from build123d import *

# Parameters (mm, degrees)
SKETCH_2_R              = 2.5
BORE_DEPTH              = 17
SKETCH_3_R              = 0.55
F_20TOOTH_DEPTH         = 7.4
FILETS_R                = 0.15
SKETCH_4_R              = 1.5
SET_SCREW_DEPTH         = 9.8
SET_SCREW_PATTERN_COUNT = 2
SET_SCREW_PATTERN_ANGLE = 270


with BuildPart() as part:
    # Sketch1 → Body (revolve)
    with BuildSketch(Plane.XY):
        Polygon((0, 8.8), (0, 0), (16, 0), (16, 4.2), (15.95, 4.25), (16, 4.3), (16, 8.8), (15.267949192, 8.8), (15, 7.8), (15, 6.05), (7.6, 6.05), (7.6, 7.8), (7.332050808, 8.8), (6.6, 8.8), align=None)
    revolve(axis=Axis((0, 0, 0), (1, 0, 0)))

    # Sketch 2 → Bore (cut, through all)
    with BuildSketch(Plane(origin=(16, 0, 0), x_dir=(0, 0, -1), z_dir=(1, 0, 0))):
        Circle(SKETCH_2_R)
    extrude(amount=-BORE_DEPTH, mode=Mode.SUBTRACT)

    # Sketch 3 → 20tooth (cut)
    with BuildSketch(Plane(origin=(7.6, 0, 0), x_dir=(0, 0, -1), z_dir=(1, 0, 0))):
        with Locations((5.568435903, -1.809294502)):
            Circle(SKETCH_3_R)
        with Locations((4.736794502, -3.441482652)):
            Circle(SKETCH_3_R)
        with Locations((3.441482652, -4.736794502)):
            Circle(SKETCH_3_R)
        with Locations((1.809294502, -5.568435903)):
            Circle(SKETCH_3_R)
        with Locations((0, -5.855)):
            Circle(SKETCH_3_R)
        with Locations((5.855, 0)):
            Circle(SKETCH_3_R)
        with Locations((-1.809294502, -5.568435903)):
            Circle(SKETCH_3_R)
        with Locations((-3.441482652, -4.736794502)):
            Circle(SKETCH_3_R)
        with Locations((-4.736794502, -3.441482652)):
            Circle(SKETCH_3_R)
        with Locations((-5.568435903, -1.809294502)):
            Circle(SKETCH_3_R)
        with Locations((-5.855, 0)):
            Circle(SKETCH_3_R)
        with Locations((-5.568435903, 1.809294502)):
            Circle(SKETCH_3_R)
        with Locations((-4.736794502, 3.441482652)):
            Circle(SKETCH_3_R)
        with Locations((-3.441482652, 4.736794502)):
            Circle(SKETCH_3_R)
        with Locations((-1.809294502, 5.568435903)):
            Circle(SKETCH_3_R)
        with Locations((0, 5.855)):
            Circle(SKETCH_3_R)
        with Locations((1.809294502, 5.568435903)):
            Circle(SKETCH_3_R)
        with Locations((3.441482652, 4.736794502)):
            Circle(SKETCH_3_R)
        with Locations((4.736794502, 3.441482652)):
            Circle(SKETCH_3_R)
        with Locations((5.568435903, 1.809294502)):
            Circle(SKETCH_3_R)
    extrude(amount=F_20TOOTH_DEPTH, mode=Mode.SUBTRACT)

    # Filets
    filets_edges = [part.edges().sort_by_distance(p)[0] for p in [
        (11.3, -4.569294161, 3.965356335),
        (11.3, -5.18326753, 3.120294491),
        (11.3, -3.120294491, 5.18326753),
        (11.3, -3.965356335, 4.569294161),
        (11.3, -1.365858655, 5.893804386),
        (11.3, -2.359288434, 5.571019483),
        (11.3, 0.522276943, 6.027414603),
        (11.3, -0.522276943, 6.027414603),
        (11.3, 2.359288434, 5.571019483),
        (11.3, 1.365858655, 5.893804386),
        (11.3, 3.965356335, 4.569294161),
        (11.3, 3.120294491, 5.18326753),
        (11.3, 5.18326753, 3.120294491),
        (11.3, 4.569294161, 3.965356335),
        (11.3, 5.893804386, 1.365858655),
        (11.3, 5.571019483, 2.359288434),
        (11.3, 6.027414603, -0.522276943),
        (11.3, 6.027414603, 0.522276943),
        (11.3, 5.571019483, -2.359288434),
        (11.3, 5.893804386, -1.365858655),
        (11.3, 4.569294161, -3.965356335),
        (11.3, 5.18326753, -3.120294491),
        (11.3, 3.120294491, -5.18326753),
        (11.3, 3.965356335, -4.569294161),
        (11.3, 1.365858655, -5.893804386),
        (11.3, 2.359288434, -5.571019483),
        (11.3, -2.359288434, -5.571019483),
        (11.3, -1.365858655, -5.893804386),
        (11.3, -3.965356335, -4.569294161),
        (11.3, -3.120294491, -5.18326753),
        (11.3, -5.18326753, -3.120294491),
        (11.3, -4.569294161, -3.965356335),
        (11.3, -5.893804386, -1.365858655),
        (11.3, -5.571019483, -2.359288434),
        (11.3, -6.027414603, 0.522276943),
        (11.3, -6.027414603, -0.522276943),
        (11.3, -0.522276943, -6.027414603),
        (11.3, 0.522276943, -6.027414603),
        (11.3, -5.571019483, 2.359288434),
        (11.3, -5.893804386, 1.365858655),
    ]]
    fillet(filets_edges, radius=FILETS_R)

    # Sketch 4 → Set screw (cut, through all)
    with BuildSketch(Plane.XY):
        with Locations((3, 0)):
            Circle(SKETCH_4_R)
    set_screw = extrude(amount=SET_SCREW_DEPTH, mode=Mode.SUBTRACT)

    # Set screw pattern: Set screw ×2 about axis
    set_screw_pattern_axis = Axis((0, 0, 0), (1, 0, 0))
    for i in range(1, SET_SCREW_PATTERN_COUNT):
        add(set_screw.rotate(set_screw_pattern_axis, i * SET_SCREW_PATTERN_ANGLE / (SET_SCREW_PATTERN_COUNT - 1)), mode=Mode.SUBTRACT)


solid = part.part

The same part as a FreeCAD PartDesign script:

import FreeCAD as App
import Part
import Sketcher
Q = App.Units.Quantity


def edges_at(feature, points):
    """Names of the edges that pass closest to the given points."""
    edges = feature.Shape.Edges
    near = lambda p: min(range(len(edges)), key=lambda i: edges[i].distToShape(Part.Vertex(*p))[0])
    return sorted({f"Edge{near(p) + 1}" for p in points})


def add_polygon(sketch, points):
    """Adds a closed chain of lines whose ends are joined by coincident constraints."""
    first, n = sketch.GeometryCount, len(points)
    for a, b in zip(points, points[1:] + points[:1]):
        sketch.addGeometry(Part.LineSegment(App.Vector(*a, 0), App.Vector(*b, 0)), False)
    for i in range(n):
        sketch.addConstraint(Sketcher.Constraint("Coincident", first + i, 2, first + (i + 1) % n, 1))

doc = App.newDocument("Part")
body = doc.addObject("PartDesign::Body", "Body")

# Sketch on XY plane
sketch1 = doc.addObject("Sketcher::SketchObject", "Sketch")
body.addObject(sketch1)
sketch1.AttachmentSupport = (doc.XY_Plane, [""])
sketch1.MapMode = "FlatFace"
add_polygon(sketch1, [(0, 8.8), (0, 0), (16, 0), (16, 4.2), (15.95, 4.25), (16, 4.3), (16, 8.8), (15.27, 8.8), (15, 7.8), (15, 6.05), (7.6, 6.05), (7.6, 7.8), (7.33, 8.8)])  # lines 0-12
sketch1.addConstraint([
    Sketcher.Constraint("Vertical", 0),
    Sketcher.Constraint("Horizontal", 1),
    Sketcher.Constraint("Vertical", 2),
    Sketcher.Constraint("Vertical", 5),
    Sketcher.Constraint("Horizontal", 6),
    Sketcher.Constraint("Vertical", 8),
    Sketcher.Constraint("Horizontal", 9),
    Sketcher.Constraint("Vertical", 10),
    Sketcher.Constraint("Horizontal", 12),
    Sketcher.Constraint("Coincident", 0, 2, -1, 1),
    Sketcher.Constraint("Perpendicular", 3, 4),
    Sketcher.Constraint("Horizontal", 7, 2, 10, 2),
    Sketcher.Constraint("Horizontal", 6, 2, 11, 2),
    Sketcher.Constraint("Vertical", 2, 2, 4, 2),
    Sketcher.Constraint("Equal", 3, 4),
    Sketcher.Constraint("Equal", 7, 11),
    Sketcher.Constraint("DistanceX", 1, 1, 1, 2, 16.0),
    Sketcher.Constraint("Angle", 7, Q("-105 deg")),
    Sketcher.Constraint("DistanceX", 9, 2, 9, 1, 7.4),
    Sketcher.Constraint("DistanceY", 0, 2, 0, 1, 8.8),
    Sketcher.Constraint("DistanceY", 2, 1, 2, 2, 4.2),
    Sketcher.Constraint("DistanceY", 5, 1, 5, 2, 4.5),
    Sketcher.Constraint("DistanceX", -1, 1, 7, 2, 15.0),
    Sketcher.Constraint("DistanceY", 7, 2, 6, 2, 1.0),
    Sketcher.Constraint("DistanceY", 8, 2, 8, 1, 1.75),
])
revolution = doc.addObject("PartDesign::Revolution", "Revolution")
body.addObject(revolution)
revolution.Profile = sketch1
revolution.ReferenceAxis = (sketch1, ["H_Axis"])
revolution.Angle = 360

# Sketch on YZ plane
sketch2 = doc.addObject("Sketcher::SketchObject", "Sketch001")
body.addObject(sketch2)
sketch2.AttachmentSupport = (doc.YZ_Plane, [""])
sketch2.MapMode = "FlatFace"
sketch2.AttachmentOffset = App.Placement(App.Vector(0, 0, 16), App.Rotation())
sketch2.addGeometry(Part.Circle(App.Vector(0, 0, 0), App.Vector(0, 0, 1), 2.5), False)
sketch2.addConstraint([
    Sketcher.Constraint("Coincident", 0, 3, -1, 1),
    Sketcher.Constraint("Diameter", 0, 5.0),
])
pocket1 = doc.addObject("PartDesign::Pocket", "Pocket")
body.addObject(pocket1)
pocket1.Profile = sketch2
pocket1.Type = "ThroughAll"

# Sketch on YZ plane
sketch3 = doc.addObject("Sketcher::SketchObject", "Sketch002")
body.addObject(sketch3)
sketch3.AttachmentSupport = (doc.YZ_Plane, [""])
sketch3.MapMode = "FlatFace"
sketch3.AttachmentOffset = App.Placement(App.Vector(0, 0, 7.6), App.Rotation())
sketch3.addGeometry([
    Part.Circle(App.Vector(-1.8, -5.6, 0), App.Vector(0, 0, 1), 0.6),  # 0
    Part.Circle(App.Vector(-3.4, -4.7, 0), App.Vector(0, 0, 1), 0.6),  # 1
    Part.Circle(App.Vector(-4.7, -3.4, 0), App.Vector(0, 0, 1), 0.6),  # 2
    Part.Circle(App.Vector(-5.6, -1.8, 0), App.Vector(0, 0, 1), 0.6),  # 3
    Part.Circle(App.Vector(-5.9, 0, 0), App.Vector(0, 0, 1), 0.6),  # 4
    Part.Circle(App.Vector(0, -5.9, 0), App.Vector(0, 0, 1), 0.6),  # 5
    Part.Circle(App.Vector(-5.6, 1.8, 0), App.Vector(0, 0, 1), 0.6),  # 6
    Part.Circle(App.Vector(-4.7, 3.4, 0), App.Vector(0, 0, 1), 0.6),  # 7
    Part.Circle(App.Vector(-3.4, 4.7, 0), App.Vector(0, 0, 1), 0.6),  # 8
    Part.Circle(App.Vector(-1.8, 5.6, 0), App.Vector(0, 0, 1), 0.6),  # 9
    Part.Circle(App.Vector(0, 5.9, 0), App.Vector(0, 0, 1), 0.6),  # 10
    Part.Circle(App.Vector(1.8, 5.6, 0), App.Vector(0, 0, 1), 0.6),  # 11
    Part.Circle(App.Vector(3.4, 4.7, 0), App.Vector(0, 0, 1), 0.6),  # 12
    Part.Circle(App.Vector(4.7, 3.4, 0), App.Vector(0, 0, 1), 0.6),  # 13
    Part.Circle(App.Vector(5.6, 1.8, 0), App.Vector(0, 0, 1), 0.6),  # 14
    Part.Circle(App.Vector(5.9, 0, 0), App.Vector(0, 0, 1), 0.6),  # 15
    Part.Circle(App.Vector(5.6, -1.8, 0), App.Vector(0, 0, 1), 0.6),  # 16
    Part.Circle(App.Vector(4.7, -3.4, 0), App.Vector(0, 0, 1), 0.6),  # 17
    Part.Circle(App.Vector(3.4, -4.7, 0), App.Vector(0, 0, 1), 0.6),  # 18
    Part.Circle(App.Vector(1.8, -5.6, 0), App.Vector(0, 0, 1), 0.6),  # 19
], False)
sketch3.addConstraint([
    Sketcher.Constraint("Equal", 0, 1),
    Sketcher.Constraint("Equal", 1, 2),
    Sketcher.Constraint("Equal", 2, 3),
    Sketcher.Constraint("Equal", 3, 4),
    Sketcher.Constraint("Equal", 4, 5),
    Sketcher.Constraint("Equal", 5, 6),
    Sketcher.Constraint("Equal", 6, 7),
    Sketcher.Constraint("Equal", 7, 8),
    Sketcher.Constraint("Equal", 8, 9),
    Sketcher.Constraint("Equal", 9, 10),
    Sketcher.Constraint("Equal", 10, 11),
    Sketcher.Constraint("Equal", 11, 12),
    Sketcher.Constraint("Equal", 12, 13),
    Sketcher.Constraint("Equal", 13, 14),
    Sketcher.Constraint("Equal", 14, 15),
    Sketcher.Constraint("Equal", 15, 16),
    Sketcher.Constraint("Equal", 16, 17),
    Sketcher.Constraint("Equal", 17, 18),
    Sketcher.Constraint("Equal", 18, 19),
    Sketcher.Constraint("Symmetric", 5, 3, 10, 3, -1, 1),
    Sketcher.Constraint("Symmetric", 0, 3, 11, 3, -1, 1),
    Sketcher.Constraint("Symmetric", 1, 3, 12, 3, -1, 1),
    Sketcher.Constraint("Symmetric", 2, 3, 13, 3, -1, 1),
    Sketcher.Constraint("Symmetric", 3, 3, 14, 3, -1, 1),
    Sketcher.Constraint("Symmetric", 4, 3, 15, 3, -1, 1),
    Sketcher.Constraint("Symmetric", 6, 3, 16, 3, -1, 1),
    Sketcher.Constraint("Symmetric", 7, 3, 17, 3, -1, 1),
    Sketcher.Constraint("Symmetric", 8, 3, 18, 3, -1, 1),
    Sketcher.Constraint("Symmetric", 9, 3, 19, 3, -1, 1),
    Sketcher.Constraint("Symmetric", 9, 3, 11, 3, -2),
    Sketcher.Constraint("Symmetric", 8, 3, 12, 3, -2),
    Sketcher.Constraint("Symmetric", 7, 3, 13, 3, -2),
    Sketcher.Constraint("Symmetric", 6, 3, 14, 3, -2),
    Sketcher.Constraint("PointOnObject", 4, 3, -1),
    Sketcher.Constraint("PointOnObject", 5, 3, -2),
    Sketcher.Constraint("Diameter", 0, 1.1),
    Sketcher.Constraint("DistanceX", 4, 3, -1, 1, 5.855),
    Sketcher.Constraint("DistanceY", 5, 3, -1, 1, 5.855),
    Sketcher.Constraint("DistanceX", 2, 3, 0, 3, 2.9275),
    Sketcher.Constraint("DistanceY", 1, 3, 3, 3, 2.9275),
    Sketcher.Constraint("DistanceX", 1, 3, 0, 3, 1.632188),
    Sketcher.Constraint("DistanceY", 0, 3, 1, 3, 0.831641),
    Sketcher.Constraint("DistanceY", 1, 3, 2, 3, 1.295312),
    Sketcher.Constraint("DistanceX", 3, 3, 2, 3, 0.831641),
    Sketcher.Constraint("DistanceY", 3, 3, 6, 3, 3.618589),
    Sketcher.Constraint("DistanceX", 9, 3, 11, 3, 3.618589),
])
pocket2 = doc.addObject("PartDesign::Pocket", "Pocket001")
body.addObject(pocket2)
pocket2.Profile = sketch3
pocket2.Length = 7.4
pocket2.Reversed = True
doc.recompute()

fillet = doc.addObject("PartDesign::Fillet", "Fillet")
body.addObject(fillet)
fillet.Base = (pocket2, edges_at(pocket2, [
    (11.3, -4.569, 3.965),
    (11.3, -5.183, 3.12),
    (11.3, -3.12, 5.183),
    (11.3, -3.965, 4.569),
    (11.3, -1.366, 5.894),
    (11.3, -2.359, 5.571),
    (11.3, 0.522, 6.027),
    (11.3, -0.522, 6.027),
    (11.3, 2.359, 5.571),
    (11.3, 1.366, 5.894),
    (11.3, 3.965, 4.569),
    (11.3, 3.12, 5.183),
    (11.3, 5.183, 3.12),
    (11.3, 4.569, 3.965),
    (11.3, 5.894, 1.366),
    (11.3, 5.571, 2.359),
    (11.3, 6.027, -0.522),
    (11.3, 6.027, 0.522),
    (11.3, 5.571, -2.359),
    (11.3, 5.894, -1.366),
    (11.3, 4.569, -3.965),
    (11.3, 5.183, -3.12),
    (11.3, 3.12, -5.183),
    (11.3, 3.965, -4.569),
    (11.3, 1.366, -5.894),
    (11.3, 2.359, -5.571),
    (11.3, -2.359, -5.571),
    (11.3, -1.366, -5.894),
    (11.3, -3.965, -4.569),
    (11.3, -3.12, -5.183),
    (11.3, -5.183, -3.12),
    (11.3, -4.569, -3.965),
    (11.3, -5.894, -1.366),
    (11.3, -5.571, -2.359),
    (11.3, -6.027, 0.522),
    (11.3, -6.027, -0.522),
    (11.3, -0.522, -6.027),
    (11.3, 0.522, -6.027),
    (11.3, -5.571, 2.359),
    (11.3, -5.894, 1.366),
]))
fillet.Radius = 0.15

# Sketch on XY plane
sketch4 = doc.addObject("Sketcher::SketchObject", "Sketch003")
body.addObject(sketch4)
sketch4.AttachmentSupport = (doc.XY_Plane, [""])
sketch4.MapMode = "FlatFace"
sketch4.addGeometry(Part.Circle(App.Vector(3, 0, 0), App.Vector(0, 0, 1), 1.5), False)
sketch4.addConstraint([
    Sketcher.Constraint("PointOnObject", 0, 3, -1),
    Sketcher.Constraint("Diameter", 0, 3.0),
    Sketcher.Constraint("DistanceX", -1, 1, 0, 3, 3.0),
])
pocket3 = doc.addObject("PartDesign::Pocket", "Pocket002")
body.addObject(pocket3)
pocket3.Profile = sketch4
pocket3.Type = "ThroughAll"
pocket3.Reversed = True
doc.recompute()

polarpattern = doc.addObject("PartDesign::PolarPattern", "PolarPattern")
body.addObject(polarpattern)
polarpattern.Originals = [pocket3]
polarpattern.Axis = (doc.X_Axis, [""])
polarpattern.Angle = 270
polarpattern.Occurrences = 2
body.Tip = polarpattern

doc.recompute()
